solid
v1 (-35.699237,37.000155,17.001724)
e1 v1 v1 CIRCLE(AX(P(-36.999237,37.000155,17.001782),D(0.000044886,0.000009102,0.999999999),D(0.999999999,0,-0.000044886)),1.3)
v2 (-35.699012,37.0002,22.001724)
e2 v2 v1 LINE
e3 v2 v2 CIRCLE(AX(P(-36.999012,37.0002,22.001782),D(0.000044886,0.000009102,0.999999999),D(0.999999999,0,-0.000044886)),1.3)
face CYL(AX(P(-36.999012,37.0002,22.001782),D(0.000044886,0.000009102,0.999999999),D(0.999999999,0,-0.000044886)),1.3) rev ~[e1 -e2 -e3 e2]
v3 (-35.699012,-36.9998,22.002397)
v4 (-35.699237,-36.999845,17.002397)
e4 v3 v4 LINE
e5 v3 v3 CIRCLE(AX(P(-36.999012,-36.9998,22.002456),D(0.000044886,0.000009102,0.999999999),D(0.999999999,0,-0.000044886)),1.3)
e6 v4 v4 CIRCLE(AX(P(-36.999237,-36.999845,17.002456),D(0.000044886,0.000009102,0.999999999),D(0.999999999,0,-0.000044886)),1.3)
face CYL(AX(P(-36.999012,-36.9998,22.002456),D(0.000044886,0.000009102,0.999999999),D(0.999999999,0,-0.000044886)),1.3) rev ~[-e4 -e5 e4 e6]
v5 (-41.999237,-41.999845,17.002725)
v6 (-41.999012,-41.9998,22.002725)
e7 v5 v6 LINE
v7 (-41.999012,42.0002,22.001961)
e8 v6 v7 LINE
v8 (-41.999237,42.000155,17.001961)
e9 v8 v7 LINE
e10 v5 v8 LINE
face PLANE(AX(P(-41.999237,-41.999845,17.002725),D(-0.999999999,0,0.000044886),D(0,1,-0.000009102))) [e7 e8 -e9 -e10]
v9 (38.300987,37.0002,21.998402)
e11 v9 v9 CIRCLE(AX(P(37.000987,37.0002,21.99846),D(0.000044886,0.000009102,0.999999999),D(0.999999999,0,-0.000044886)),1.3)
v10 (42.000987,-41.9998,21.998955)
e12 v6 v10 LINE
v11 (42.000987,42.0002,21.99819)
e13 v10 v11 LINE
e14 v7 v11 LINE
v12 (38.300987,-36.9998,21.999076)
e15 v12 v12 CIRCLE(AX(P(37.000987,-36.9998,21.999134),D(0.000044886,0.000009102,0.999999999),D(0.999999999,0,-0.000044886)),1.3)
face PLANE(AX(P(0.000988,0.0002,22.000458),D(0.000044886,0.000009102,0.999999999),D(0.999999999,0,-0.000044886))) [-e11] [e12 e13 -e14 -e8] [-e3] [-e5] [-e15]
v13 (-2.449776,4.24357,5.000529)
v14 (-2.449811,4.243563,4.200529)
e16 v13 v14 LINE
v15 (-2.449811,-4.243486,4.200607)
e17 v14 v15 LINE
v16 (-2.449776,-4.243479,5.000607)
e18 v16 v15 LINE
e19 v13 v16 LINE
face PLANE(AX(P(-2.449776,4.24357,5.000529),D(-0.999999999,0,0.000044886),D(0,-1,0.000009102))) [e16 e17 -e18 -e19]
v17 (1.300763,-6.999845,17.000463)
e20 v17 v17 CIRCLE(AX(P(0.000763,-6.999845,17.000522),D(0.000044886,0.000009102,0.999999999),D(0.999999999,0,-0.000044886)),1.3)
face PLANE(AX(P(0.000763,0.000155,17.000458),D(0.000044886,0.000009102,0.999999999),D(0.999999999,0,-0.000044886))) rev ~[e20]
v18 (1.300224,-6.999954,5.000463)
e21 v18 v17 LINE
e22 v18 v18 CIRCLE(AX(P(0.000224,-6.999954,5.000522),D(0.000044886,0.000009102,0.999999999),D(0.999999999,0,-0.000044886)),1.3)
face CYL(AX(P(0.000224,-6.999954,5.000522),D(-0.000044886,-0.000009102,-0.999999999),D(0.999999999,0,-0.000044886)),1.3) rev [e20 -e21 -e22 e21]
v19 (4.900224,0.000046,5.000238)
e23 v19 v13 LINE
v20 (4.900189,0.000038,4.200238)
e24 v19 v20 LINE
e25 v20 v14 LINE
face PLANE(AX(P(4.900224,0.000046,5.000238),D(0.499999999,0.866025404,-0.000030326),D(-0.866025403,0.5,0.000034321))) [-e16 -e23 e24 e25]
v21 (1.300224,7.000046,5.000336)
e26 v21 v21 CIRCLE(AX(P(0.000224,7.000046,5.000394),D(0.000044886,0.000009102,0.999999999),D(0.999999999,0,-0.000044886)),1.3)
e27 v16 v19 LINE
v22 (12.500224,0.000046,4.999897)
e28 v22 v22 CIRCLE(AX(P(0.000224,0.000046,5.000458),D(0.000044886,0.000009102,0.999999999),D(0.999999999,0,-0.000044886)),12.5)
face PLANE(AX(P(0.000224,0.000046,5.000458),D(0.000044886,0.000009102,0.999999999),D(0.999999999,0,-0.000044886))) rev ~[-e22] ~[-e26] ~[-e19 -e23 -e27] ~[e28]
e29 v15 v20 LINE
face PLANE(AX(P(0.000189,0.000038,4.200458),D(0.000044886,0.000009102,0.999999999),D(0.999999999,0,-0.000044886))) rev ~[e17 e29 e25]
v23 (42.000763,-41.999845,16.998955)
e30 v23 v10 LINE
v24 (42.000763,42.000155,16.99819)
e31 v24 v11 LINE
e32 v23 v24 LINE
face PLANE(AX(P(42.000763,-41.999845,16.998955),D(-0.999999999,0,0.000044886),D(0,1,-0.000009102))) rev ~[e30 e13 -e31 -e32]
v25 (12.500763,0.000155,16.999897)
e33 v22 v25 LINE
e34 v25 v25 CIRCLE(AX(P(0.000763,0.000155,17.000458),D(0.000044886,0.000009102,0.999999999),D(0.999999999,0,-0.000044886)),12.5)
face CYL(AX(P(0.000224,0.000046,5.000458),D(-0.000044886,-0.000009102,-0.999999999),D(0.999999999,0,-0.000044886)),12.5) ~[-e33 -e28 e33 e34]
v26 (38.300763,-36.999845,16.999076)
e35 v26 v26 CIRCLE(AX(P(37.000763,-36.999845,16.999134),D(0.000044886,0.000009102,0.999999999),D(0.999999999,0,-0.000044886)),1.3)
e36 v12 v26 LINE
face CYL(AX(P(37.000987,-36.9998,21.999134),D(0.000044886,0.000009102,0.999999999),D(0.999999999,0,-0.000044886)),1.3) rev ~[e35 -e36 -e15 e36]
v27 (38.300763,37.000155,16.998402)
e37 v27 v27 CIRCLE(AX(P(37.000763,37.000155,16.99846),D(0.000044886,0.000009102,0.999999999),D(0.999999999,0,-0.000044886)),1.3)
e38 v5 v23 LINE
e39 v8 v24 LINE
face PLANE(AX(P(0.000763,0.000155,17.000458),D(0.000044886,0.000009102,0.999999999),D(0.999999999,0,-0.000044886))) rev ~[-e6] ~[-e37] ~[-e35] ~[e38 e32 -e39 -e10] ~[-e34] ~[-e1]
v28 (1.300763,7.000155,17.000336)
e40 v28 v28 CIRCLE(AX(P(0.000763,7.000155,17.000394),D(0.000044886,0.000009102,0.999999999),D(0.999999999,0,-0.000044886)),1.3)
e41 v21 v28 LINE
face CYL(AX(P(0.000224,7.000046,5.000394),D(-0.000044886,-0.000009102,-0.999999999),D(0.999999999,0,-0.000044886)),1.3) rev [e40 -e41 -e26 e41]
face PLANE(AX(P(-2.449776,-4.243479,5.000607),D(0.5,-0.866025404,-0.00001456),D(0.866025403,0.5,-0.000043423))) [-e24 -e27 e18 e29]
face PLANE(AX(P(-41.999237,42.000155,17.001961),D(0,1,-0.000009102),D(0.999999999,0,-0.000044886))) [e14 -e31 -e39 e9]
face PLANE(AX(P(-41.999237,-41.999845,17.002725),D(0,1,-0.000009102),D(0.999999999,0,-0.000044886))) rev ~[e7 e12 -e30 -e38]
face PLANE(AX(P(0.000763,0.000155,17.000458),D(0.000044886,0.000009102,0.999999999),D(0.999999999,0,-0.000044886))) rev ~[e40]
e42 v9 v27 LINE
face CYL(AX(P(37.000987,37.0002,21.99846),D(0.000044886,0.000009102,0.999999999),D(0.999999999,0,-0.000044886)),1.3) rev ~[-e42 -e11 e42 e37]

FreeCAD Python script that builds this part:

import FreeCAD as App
import Part
import Sketcher
Q = App.Units.Quantity


def add_polygon(sketch, points):
    """Adds a closed chain of lines whose ends are joined by coincident constraints."""
    first, n = sketch.GeometryCount, len(points)
    for a, b in zip(points, points[1:] + points[:1]):
        sketch.addGeometry(Part.LineSegment(App.Vector(*a, 0), App.Vector(*b, 0)), False)
    for i in range(n):
        sketch.addConstraint(Sketcher.Constraint("Coincident", first + i, 2, first + (i + 1) % n, 1))

doc = App.newDocument("Part")
body = doc.addObject("PartDesign::Body", "Body")

# Sketch on XY plane
sketch1 = body.newObject("Sketcher::SketchObject", "Sketch")
sketch1.AttachmentSupport = (doc.getObject("XY_Plane"), [""])
sketch1.MapMode = "FlatFace"
sketch1.AttachmentOffset = App.Placement(App.Vector(0, 0, 5.000458), App.Rotation())
sketch1.addGeometry([
    Part.Circle(App.Vector(0, 0, 0), App.Vector(0, 0, 1), 12.5),
    Part.Circle(App.Vector(0, -7, 0), App.Vector(0, 0, 1), 1.3),
    Part.Circle(App.Vector(0, 7, 0), App.Vector(0, 0, 1), 1.3),
], False)
sketch1.addConstraint([
    Sketcher.Constraint("Equal", 1, 2),
    Sketcher.Constraint("Vertical", 0, 3, 1, 3),
    Sketcher.Constraint("Vertical", 1, 3, 2, 3),
    Sketcher.Constraint("Diameter", 0, 25.0),
    Sketcher.Constraint("Diameter", 1, 2.6),
    Sketcher.Constraint("DistanceY", 1, 3, 0, 3, 7.0),
    Sketcher.Constraint("DistanceY", 0, 3, 2, 3, 7.0),
    Sketcher.Constraint("DistanceX", -1, 1, 0, 3, 0.000224),
    Sketcher.Constraint("DistanceY", 1, 3, -1, 1, 6.999954),
])
pad1 = body.newObject("PartDesign::Pad", "Pad")
pad1.Profile = sketch1
pad1.Length = 12

# Sketch on XY plane
sketch2 = body.newObject("Sketcher::SketchObject", "Sketch001")
sketch2.AttachmentSupport = (doc.getObject("XY_Plane"), [""])
sketch2.MapMode = "FlatFace"
sketch2.AttachmentOffset = App.Placement(App.Vector(0, 0, 5.000458), App.Rotation())
add_polygon(sketch2, [(5, 0), (-2, 4), (-2, -4)])  # lines 0-2
sketch2.addConstraint([
    Sketcher.Constraint("Vertical", 1),
    Sketcher.Constraint("Equal", 0, 2),
    Sketcher.Constraint("Angle", 0, Q("150 deg")),
    Sketcher.Constraint("DistanceX", 1, 2, 2, 2, 7.35),
    Sketcher.Constraint("DistanceY", -1, 1, 0, 2, 4.24357),
    Sketcher.Constraint("DistanceX", 0, 2, -1, 1, 2.449776),
])
pad2 = body.newObject("PartDesign::Pad", "Pad001")
pad2.Profile = sketch2
pad2.Length = 0.8
pad2.Reversed = True

# Sketch on XY plane
sketch3 = body.newObject("Sketcher::SketchObject", "Sketch002")
sketch3.AttachmentSupport = (doc.getObject("XY_Plane"), [""])
sketch3.MapMode = "FlatFace"
sketch3.AttachmentOffset = App.Placement(App.Vector(0, 0, 17.000458), App.Rotation())
add_polygon(sketch3, [(-42, 42), (-42, -42), (42, -42), (42, 42)])  # lines 0-3
sketch3.addConstraint([
    Sketcher.Constraint("Vertical", 0),
    Sketcher.Constraint("Horizontal", 1),
    Sketcher.Constraint("Vertical", 2),
    Sketcher.Constraint("Horizontal", 3),
    Sketcher.Constraint("Equal", 3, 0),
    Sketcher.Constraint("DistanceX", 1, 1, 1, 2, 84.0),
    Sketcher.Constraint("DistanceX", 0, 2, -1, 1, 41.999237),
    Sketcher.Constraint("DistanceY", 0, 2, -1, 1, 41.999845),
])
pad3 = body.newObject("PartDesign::Pad", "Pad002")
pad3.Profile = sketch3
pad3.Length = 5

# Sketch on XY plane
sketch4 = body.newObject("Sketcher::SketchObject", "Sketch003")
sketch4.AttachmentSupport = (doc.getObject("XY_Plane"), [""])
sketch4.MapMode = "FlatFace"
sketch4.AttachmentOffset = App.Placement(App.Vector(0, 0, 22.000458), App.Rotation())
sketch4.addGeometry([
    Part.Circle(App.Vector(-37, 37, 0), App.Vector(0, 0, 1), 1.3),
    Part.Circle(App.Vector(-37, -37, 0), App.Vector(0, 0, 1), 1.3),
    Part.Circle(App.Vector(37, -37, 0), App.Vector(0, 0, 1), 1.3),
    Part.Circle(App.Vector(37, 37, 0), App.Vector(0, 0, 1), 1.3),
], False)
sketch4.addConstraint([
    Sketcher.Constraint("Equal", 0, 1),
    Sketcher.Constraint("Equal", 1, 2),
    Sketcher.Constraint("Equal", 2, 3),
    Sketcher.Constraint("Horizontal", 1, 3, 2, 3),
    Sketcher.Constraint("Horizontal", 0, 3, 3, 3),
    Sketcher.Constraint("Vertical", 0, 3, 1, 3),
    Sketcher.Constraint("Vertical", 2, 3, 3, 3),
    Sketcher.Constraint("Diameter", 0, 2.6),
    Sketcher.Constraint("DistanceY", 1, 3, 0, 3, 74.0),
    Sketcher.Constraint("DistanceX", 1, 3, 2, 3, 74.0),
    Sketcher.Constraint("DistanceY", -1, 1, 0, 3, 37.0002),
    Sketcher.Constraint("DistanceX", 0, 3, -1, 1, 36.999012),
])
pocket1 = body.newObject("PartDesign::Pocket", "Pocket")
pocket1.Profile = sketch4
pocket1.Type = "ThroughAll"

doc.recompute()
